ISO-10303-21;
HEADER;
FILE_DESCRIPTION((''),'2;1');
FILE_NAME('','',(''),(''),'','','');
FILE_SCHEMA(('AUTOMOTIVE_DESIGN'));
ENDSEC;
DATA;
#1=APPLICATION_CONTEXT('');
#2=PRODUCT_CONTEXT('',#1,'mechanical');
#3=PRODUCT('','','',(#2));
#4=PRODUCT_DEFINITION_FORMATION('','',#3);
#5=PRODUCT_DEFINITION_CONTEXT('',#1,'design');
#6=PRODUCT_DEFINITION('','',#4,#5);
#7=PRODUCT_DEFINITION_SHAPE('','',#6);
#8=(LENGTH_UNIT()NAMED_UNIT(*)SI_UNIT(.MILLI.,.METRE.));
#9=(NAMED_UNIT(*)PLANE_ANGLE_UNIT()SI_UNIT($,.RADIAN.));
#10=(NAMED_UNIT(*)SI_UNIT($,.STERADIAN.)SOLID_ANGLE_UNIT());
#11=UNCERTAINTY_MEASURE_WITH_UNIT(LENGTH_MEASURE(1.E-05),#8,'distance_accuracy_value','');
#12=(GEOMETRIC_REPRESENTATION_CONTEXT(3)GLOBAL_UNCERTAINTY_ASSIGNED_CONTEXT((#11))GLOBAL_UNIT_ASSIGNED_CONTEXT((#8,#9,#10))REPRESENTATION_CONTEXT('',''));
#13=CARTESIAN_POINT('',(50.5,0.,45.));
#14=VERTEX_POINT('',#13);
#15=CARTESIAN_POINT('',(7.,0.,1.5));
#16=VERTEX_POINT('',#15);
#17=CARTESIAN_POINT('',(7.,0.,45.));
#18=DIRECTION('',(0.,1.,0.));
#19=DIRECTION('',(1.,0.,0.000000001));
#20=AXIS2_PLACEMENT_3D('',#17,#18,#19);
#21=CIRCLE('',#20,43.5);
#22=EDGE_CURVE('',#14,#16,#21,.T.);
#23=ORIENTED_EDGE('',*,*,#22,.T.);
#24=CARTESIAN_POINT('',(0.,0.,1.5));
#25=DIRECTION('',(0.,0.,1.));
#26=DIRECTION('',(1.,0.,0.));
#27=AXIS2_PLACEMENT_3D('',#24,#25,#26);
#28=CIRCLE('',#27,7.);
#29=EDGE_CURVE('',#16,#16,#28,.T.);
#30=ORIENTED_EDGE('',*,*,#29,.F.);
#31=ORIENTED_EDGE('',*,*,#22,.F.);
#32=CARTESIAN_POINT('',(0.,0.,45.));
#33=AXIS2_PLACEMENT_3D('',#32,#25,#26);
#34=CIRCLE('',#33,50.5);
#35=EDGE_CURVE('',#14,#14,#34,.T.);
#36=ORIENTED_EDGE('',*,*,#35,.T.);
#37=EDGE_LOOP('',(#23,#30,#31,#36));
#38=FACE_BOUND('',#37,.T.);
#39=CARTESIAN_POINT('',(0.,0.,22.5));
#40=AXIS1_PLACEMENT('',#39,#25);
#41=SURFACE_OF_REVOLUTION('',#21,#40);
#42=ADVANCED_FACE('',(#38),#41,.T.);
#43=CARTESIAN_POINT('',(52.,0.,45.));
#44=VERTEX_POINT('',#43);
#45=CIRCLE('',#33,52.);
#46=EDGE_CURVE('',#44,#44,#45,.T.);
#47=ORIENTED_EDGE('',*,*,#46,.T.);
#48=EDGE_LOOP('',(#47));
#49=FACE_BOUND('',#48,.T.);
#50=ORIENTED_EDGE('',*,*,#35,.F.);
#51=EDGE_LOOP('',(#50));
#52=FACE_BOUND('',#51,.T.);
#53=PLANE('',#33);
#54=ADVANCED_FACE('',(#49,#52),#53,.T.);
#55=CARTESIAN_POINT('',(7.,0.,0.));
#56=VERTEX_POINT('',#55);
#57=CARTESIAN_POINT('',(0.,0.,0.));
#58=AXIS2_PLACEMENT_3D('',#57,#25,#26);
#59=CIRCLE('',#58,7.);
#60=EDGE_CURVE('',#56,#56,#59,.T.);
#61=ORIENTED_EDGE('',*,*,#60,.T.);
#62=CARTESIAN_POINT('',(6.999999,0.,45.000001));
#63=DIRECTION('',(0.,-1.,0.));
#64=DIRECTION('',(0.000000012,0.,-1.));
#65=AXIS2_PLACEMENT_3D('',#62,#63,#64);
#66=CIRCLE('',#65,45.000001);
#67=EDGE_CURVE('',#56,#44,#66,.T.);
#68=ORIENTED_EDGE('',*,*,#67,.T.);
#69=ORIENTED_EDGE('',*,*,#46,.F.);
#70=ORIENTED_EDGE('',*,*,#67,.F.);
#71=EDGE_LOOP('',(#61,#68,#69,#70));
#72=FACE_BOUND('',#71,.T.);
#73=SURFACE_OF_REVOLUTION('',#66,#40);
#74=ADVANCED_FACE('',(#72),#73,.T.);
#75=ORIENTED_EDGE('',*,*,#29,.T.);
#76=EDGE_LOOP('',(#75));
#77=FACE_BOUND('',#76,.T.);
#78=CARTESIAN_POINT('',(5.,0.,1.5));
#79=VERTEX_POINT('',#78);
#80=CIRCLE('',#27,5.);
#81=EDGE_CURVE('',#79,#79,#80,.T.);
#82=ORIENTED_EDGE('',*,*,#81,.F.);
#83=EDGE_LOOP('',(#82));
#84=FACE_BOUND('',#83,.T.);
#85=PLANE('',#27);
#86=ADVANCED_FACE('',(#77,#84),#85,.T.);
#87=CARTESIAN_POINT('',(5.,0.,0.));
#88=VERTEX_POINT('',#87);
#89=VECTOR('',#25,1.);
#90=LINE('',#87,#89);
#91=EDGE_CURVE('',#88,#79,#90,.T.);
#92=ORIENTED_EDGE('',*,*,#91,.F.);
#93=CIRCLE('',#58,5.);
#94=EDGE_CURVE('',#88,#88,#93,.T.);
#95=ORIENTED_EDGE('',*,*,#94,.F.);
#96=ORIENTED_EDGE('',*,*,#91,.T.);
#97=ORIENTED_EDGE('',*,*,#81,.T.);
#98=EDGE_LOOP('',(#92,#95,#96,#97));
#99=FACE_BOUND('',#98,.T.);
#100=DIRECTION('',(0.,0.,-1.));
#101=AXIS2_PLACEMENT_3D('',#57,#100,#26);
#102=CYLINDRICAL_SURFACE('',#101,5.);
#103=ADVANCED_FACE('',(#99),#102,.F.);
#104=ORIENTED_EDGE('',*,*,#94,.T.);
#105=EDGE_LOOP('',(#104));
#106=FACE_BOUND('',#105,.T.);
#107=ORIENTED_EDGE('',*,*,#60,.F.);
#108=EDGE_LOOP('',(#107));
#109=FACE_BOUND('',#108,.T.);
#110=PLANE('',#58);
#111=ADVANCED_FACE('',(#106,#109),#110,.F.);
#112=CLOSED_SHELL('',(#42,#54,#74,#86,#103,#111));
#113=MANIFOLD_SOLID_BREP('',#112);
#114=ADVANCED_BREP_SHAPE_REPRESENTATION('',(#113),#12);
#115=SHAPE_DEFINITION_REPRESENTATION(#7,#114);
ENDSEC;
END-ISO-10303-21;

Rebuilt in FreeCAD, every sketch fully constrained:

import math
import FreeCAD as App
import Part
import Sketcher

V = App.Vector
Q = App.Units.Quantity

doc = App.newDocument("Part")
params = doc.addObject("Spreadsheet::Sheet", "Params")
for row, (alias, value) in enumerate([
    ("sketch1_radius", "45.000001 mm"),
    ("sketch1_radius2", "43.5 mm"),
    ("sketch1_width", "7 mm"),
    ("revolution_angle", "360 deg"),
    ("sketch2_diameter", "10 mm"),
    ("pocket1_length", "1.5 mm"),
], start=1):
    params.set(f"A{row}", alias)
    params.set(f"B{row}", "=" + value)
    params.setAlias(f"B{row}", alias)

body = doc.addObject("PartDesign::Body", "Body")

sketch1 = doc.addObject("Sketcher::SketchObject", "Sketch")
body.addObject(sketch1)
sketch1.AttachmentSupport = (doc.XZ_Plane, [""])
sketch1.MapMode = "FlatFace"
sketch1.addGeometry(Part.LineSegment(V(0, 1.5, 0), V(0, 0, 0)), False)
sketch1.addGeometry(Part.LineSegment(V(0, 0, 0), V(7, 0, 0)), False)
sketch1.addGeometry(Part.ArcOfCircle(Part.Circle(V(6.999999, 45.000001, 0), V(0, 0, 1), 45.000001), math.radians(-89.999999), math.radians(-0.000001)), False)
sketch1.addGeometry(Part.LineSegment(V(52, 45, 0), V(50.5, 45, 0)), False)
sketch1.addGeometry(Part.ArcOfCircle(Part.Circle(V(7, 45, 0), V(0, 0, 1), 43.5), math.radians(-90), math.radians(0)), False)
sketch1.addGeometry(Part.LineSegment(V(7, 1.5, 0), V(0, 1.5, 0)), False)
sketch1.addConstraint(Sketcher.Constraint("Coincident", 0, 2, 1, 1))
sketch1.addConstraint(Sketcher.Constraint("Tangent", 1, 2, 2, 1))
sketch1.addConstraint(Sketcher.Constraint("Coincident", 2, 2, 3, 1))
sketch1.addConstraint(Sketcher.Constraint("Coincident", 3, 2, 4, 2))
sketch1.addConstraint(Sketcher.Constraint("Tangent", 4, 1, 5, 1))
sketch1.addConstraint(Sketcher.Constraint("Coincident", 5, 2, 0, 1))
sketch1.addConstraint(Sketcher.Constraint("Vertical", 0))
sketch1.addConstraint(Sketcher.Constraint("Horizontal", 1))
sketch1.addConstraint(Sketcher.Constraint("Horizontal", 3))
sketch1.addConstraint(Sketcher.Constraint("Horizontal", 5))
sketch1.addConstraint(Sketcher.Constraint("Coincident", 0, 2, -1, 1))
sketch1.addConstraint(Sketcher.Constraint("Coincident", 4, 3, 2, 3))
sketch1.addConstraint(Sketcher.Constraint("Horizontal", 4, 3, 2, 2))
sketch1.addConstraint(Sketcher.Constraint("Radius", 2, Q("45.000001 mm")))
sketch1.addConstraint(Sketcher.Constraint("Radius", 4, Q("43.5 mm")))
sketch1.addConstraint(Sketcher.Constraint("DistanceX", 1, 1, 1, 2, Q("7 mm")))
sketch1.setExpression("Constraints[13]", "Params.sketch1_radius")
sketch1.setExpression("Constraints[14]", "Params.sketch1_radius2")
sketch1.setExpression("Constraints[15]", "Params.sketch1_width")
revolution = doc.addObject("PartDesign::Revolution", "Revolution")
body.addObject(revolution)
revolution.Profile = sketch1
revolution.ReferenceAxis = (sketch1, ["V_Axis"])
revolution.setExpression("Angle", "Params.revolution_angle")

sketch2 = doc.addObject("Sketcher::SketchObject", "Sketch001")
body.addObject(sketch2)
sketch2.AttachmentSupport = (doc.XY_Plane, [""])
sketch2.MapMode = "FlatFace"
sketch2.addGeometry(Part.Circle(V(0, 0, 0), V(0, 0, 1), 5), False)
sketch2.addConstraint(Sketcher.Constraint("Coincident", 0, 3, -1, 1))
sketch2.addConstraint(Sketcher.Constraint("Diameter", 0, Q("10 mm")))
sketch2.setExpression("Constraints[1]", "Params.sketch2_diameter")
pocket1 = doc.addObject("PartDesign::Pocket", "Pocket")
body.addObject(pocket1)
pocket1.Profile = sketch2
pocket1.setExpression("Length", "Params.pocket1_length")
pocket1.Reversed = True

doc.recompute()
